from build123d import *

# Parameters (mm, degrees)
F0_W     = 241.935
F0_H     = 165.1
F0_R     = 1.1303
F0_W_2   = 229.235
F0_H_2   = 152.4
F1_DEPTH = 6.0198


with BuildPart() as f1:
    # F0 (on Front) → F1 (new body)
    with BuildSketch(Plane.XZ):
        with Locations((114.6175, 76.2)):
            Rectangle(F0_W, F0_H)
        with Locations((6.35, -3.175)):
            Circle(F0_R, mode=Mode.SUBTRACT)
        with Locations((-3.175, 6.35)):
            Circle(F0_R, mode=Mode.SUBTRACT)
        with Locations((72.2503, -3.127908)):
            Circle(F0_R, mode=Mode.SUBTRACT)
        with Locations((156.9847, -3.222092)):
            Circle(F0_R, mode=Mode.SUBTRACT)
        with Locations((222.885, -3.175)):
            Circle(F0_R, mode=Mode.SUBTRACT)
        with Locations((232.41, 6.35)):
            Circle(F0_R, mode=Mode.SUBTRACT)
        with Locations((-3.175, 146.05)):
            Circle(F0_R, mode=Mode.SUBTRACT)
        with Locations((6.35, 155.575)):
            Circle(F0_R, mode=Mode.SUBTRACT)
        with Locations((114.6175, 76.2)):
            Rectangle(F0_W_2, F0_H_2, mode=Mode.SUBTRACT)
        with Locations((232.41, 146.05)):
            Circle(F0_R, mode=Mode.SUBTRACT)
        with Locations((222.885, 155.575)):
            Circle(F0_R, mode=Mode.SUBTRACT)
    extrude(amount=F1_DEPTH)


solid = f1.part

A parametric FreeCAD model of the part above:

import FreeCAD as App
import Part
import Sketcher
Q = App.Units.Quantity


def add_polygon(sketch, points):
    """Adds a closed chain of lines whose ends are joined by coincident constraints."""
    first, n = sketch.GeometryCount, len(points)
    for a, b in zip(points, points[1:] + points[:1]):
        sketch.addGeometry(Part.LineSegment(App.Vector(*a, 0), App.Vector(*b, 0)), False)
    for i in range(n):
        sketch.addConstraint(Sketcher.Constraint("Coincident", first + i, 2, first + (i + 1) % n, 1))

doc = App.newDocument("Part")
body = doc.addObject("PartDesign::Body", "Body")

# Sketch on XZ plane
sketch1 = doc.addObject("Sketcher::SketchObject", "Sketch")
body.addObject(sketch1)
sketch1.AttachmentSupport = (doc.XZ_Plane, [""])
sketch1.MapMode = "FlatFace"
add_polygon(sketch1, [(-6.3, 158.8), (-6.3, -6.3), (235.6, -6.3), (235.6, 158.8)])  # lines 0-3
sketch1.addGeometry(Part.Circle(App.Vector(6.3, -3.2, 0), App.Vector(0, 0, 1), 1.1), False)  # 4
sketch1.addGeometry(Part.Circle(App.Vector(-3.2, 6.3, 0), App.Vector(0, 0, 1), 1.1), False)  # 5
sketch1.addGeometry(Part.Circle(App.Vector(72.3, -3.1, 0), App.Vector(0, 0, 1), 1.1), False)  # 6
sketch1.addGeometry(Part.Circle(App.Vector(157, -3.2, 0), App.Vector(0, 0, 1), 1.1), False)  # 7
sketch1.addGeometry(Part.Circle(App.Vector(222.9, -3.2, 0), App.Vector(0, 0, 1), 1.1), False)  # 8
sketch1.addGeometry(Part.Circle(App.Vector(232.4, 6.3, 0), App.Vector(0, 0, 1), 1.1), False)  # 9
sketch1.addGeometry(Part.Circle(App.Vector(-3.2, 146.1, 0), App.Vector(0, 0, 1), 1.1), False)  # 10
sketch1.addGeometry(Part.Circle(App.Vector(6.3, 155.6, 0), App.Vector(0, 0, 1), 1.1), False)  # 11
add_polygon(sketch1, [(229.2, 0), (0, 0), (0, 152.4), (229.2, 152.4)])  # lines 12-15
sketch1.addGeometry(Part.Circle(App.Vector(232.4, 146.1, 0), App.Vector(0, 0, 1), 1.1), False)  # 16
sketch1.addGeometry(Part.Circle(App.Vector(222.9, 155.6, 0), App.Vector(0, 0, 1), 1.1), False)  # 17
sketch1.addConstraint(Sketcher.Constraint("Vertical", 0))
sketch1.addConstraint(Sketcher.Constraint("Horizontal", 1))
sketch1.addConstraint(Sketcher.Constraint("Vertical", 2))
sketch1.addConstraint(Sketcher.Constraint("Horizontal", 3))
sketch1.addConstraint(Sketcher.Constraint("Horizontal", 12))
sketch1.addConstraint(Sketcher.Constraint("Vertical", 13))
sketch1.addConstraint(Sketcher.Constraint("Horizontal", 14))
sketch1.addConstraint(Sketcher.Constraint("Vertical", 15))
sketch1.addConstraint(Sketcher.Constraint("Coincident", 12, 2, -1, 1))
sketch1.addConstraint(Sketcher.Constraint("Equal", 4, 5))
sketch1.addConstraint(Sketcher.Constraint("Equal", 5, 6))
sketch1.addConstraint(Sketcher.Constraint("Equal", 6, 7))
sketch1.addConstraint(Sketcher.Constraint("Equal", 7, 8))
sketch1.addConstraint(Sketcher.Constraint("Equal", 8, 9))
sketch1.addConstraint(Sketcher.Constraint("Equal", 9, 10))
sketch1.addConstraint(Sketcher.Constraint("Equal", 10, 11))
sketch1.addConstraint(Sketcher.Constraint("Equal", 11, 16))
sketch1.addConstraint(Sketcher.Constraint("Equal", 16, 17))
sketch1.addConstraint(Sketcher.Constraint("Horizontal", 4, 3, 8, 3))
sketch1.addConstraint(Sketcher.Constraint("Horizontal", 5, 3, 9, 3))
sketch1.addConstraint(Sketcher.Constraint("Horizontal", 10, 3, 16, 3))
sketch1.addConstraint(Sketcher.Constraint("Horizontal", 11, 3, 17, 3))
sketch1.addConstraint(Sketcher.Constraint("Vertical", 5, 3, 10, 3))
sketch1.addConstraint(Sketcher.Constraint("Vertical", 4, 3, 11, 3))
sketch1.addConstraint(Sketcher.Constraint("Vertical", 9, 3, 16, 3))
sketch1.addConstraint(Sketcher.Constraint("Vertical", 8, 3, 17, 3))
sketch1.addConstraint(Sketcher.Constraint("DistanceY", 13, 1, 13, 2, Q("6 in")))
sketch1.addConstraint(Sketcher.Constraint("Diameter", 4, Q("0.089 in")))
sketch1.addConstraint(Sketcher.Constraint("DistanceY", 0, 2, 0, 1, Q("6.5 in")))
sketch1.addConstraint(Sketcher.Constraint("DistanceY", 0, 2, 10, 3, Q("6 in")))
sketch1.addConstraint(Sketcher.Constraint("DistanceY", 9, 3, 2, 2, Q("6 in")))
sketch1.addConstraint(Sketcher.Constraint("DistanceX", 5, 3, 8, 3, Q("8.9 in")))
sketch1.addConstraint(Sketcher.Constraint("DistanceX", 4, 3, 9, 3, Q("8.9 in")))
sketch1.addConstraint(Sketcher.Constraint("DistanceX", 0, 2, 4, 3, Q("0.5 in")))
sketch1.addConstraint(Sketcher.Constraint("DistanceX", 8, 3, 1, 2, Q("0.5 in")))
sketch1.addConstraint(Sketcher.Constraint("DistanceX", 1, 1, 1, 2, Q("9.525 in")))
sketch1.addConstraint(Sketcher.Constraint("DistanceX", 12, 2, 12, 1, Q("9.025 in")))
sketch1.addConstraint(Sketcher.Constraint("DistanceX", -1, 1, 4, 3, Q("0.25 in")))
sketch1.addConstraint(Sketcher.Constraint("DistanceY", -1, 1, 5, 3, Q("0.25 in")))
sketch1.addConstraint(Sketcher.Constraint("DistanceY", 4, 3, 11, 3, Q("6.25 in")))
sketch1.addConstraint(Sketcher.Constraint("DistanceY", 4, 3, -1, 1, Q("0.125 in")))
sketch1.addConstraint(Sketcher.Constraint("DistanceX", 6, 3, 7, 3, Q("3.336 in")))
sketch1.addConstraint(Sketcher.Constraint("DistanceX", -1, 1, 6, 3, Q("2.8445 in")))
sketch1.addConstraint(Sketcher.Constraint("DistanceY", 6, 3, -1, 1, Q("3.127908 mm")))
sketch1.addConstraint(Sketcher.Constraint("DistanceY", 7, 3, -1, 1, Q("3.222092 mm")))
pad1 = doc.addObject("PartDesign::Pad", "Pad")
body.addObject(pad1)
pad1.Profile = sketch1
pad1.Length = Q("0.237 in")

doc.recompute()
